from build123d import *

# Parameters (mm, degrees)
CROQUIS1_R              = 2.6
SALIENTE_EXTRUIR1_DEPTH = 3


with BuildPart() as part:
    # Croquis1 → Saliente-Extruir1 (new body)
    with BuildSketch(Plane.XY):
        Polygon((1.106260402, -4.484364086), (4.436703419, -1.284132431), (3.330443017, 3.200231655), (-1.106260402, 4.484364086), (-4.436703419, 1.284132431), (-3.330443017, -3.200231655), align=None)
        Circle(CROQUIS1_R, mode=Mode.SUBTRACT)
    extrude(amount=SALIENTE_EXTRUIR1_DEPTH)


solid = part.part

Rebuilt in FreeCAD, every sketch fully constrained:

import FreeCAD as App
import Part
import Sketcher
Q = App.Units.Quantity


def add_polygon(sketch, points):
    """Adds a closed chain of lines whose ends are joined by coincident constraints."""
    first, n = sketch.GeometryCount, len(points)
    for a, b in zip(points, points[1:] + points[:1]):
        sketch.addGeometry(Part.LineSegment(App.Vector(*a, 0), App.Vector(*b, 0)), False)
    for i in range(n):
        sketch.addConstraint(Sketcher.Constraint("Coincident", first + i, 2, first + (i + 1) % n, 1))

doc = App.newDocument("Part")
body = doc.addObject("PartDesign::Body", "Body")

# Sketch on XY plane
sketch1 = body.newObject("Sketcher::SketchObject", "Sketch")
sketch1.AttachmentSupport = (doc.getObject("XY_Plane"), [""])
sketch1.MapMode = "FlatFace"
add_polygon(sketch1, [(1.1, -4.5), (4.4, -1.3), (3.3, 3.2), (-1.1, 4.5), (-4.4, 1.3), (-3.3, -3.2)])  # lines 0-5
sketch1.addGeometry(Part.Circle(App.Vector(0, 0, 0), App.Vector(0, 0, 1), 2.6), False)  # 6
sketch1.addConstraint(Sketcher.Constraint("Coincident", 6, 3, -1, 1))
sketch1.addConstraint(Sketcher.Constraint("Symmetric", 0, 2, 3, 2, -1, 1))
sketch1.addConstraint(Sketcher.Constraint("Symmetric", 1, 2, 4, 2, -1, 1))
sketch1.addConstraint(Sketcher.Constraint("Symmetric", 2, 2, 5, 2, -1, 1))
sketch1.addConstraint(Sketcher.Constraint("Equal", 0, 1))
sketch1.addConstraint(Sketcher.Constraint("Equal", 1, 2))
sketch1.addConstraint(Sketcher.Constraint("Diameter", 6, Q("5.2 mm")))
sketch1.addConstraint(Sketcher.Constraint("DistanceY", 3, 2, 1, 2, Q("1.916099 mm")))
sketch1.addConstraint(Sketcher.Constraint("DistanceY", -1, 1, 1, 2, Q("3.200232 mm")))
sketch1.addConstraint(Sketcher.Constraint("DistanceX", 2, 2, -1, 1, Q("1.10626 mm")))
sketch1.addConstraint(Sketcher.Constraint("DistanceX", 1, 2, 0, 2, Q("1.10626 mm")))
pad1 = body.newObject("PartDesign::Pad", "Pad")
pad1.Profile = sketch1
pad1.Length = 3

doc.recompute()
